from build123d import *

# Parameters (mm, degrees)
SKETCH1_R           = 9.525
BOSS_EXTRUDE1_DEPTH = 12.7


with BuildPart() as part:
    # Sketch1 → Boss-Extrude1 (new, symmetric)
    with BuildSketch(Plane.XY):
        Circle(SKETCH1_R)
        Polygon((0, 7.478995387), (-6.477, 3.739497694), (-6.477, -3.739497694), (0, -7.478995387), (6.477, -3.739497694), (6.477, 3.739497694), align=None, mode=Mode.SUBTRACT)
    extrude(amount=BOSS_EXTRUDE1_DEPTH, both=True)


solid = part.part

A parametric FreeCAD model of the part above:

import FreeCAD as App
import Part
import Sketcher

V = App.Vector
Q = App.Units.Quantity


def add_polygon(sketch, points):
    """Adds a closed chain of lines whose ends are joined by coincident constraints."""
    first, n = sketch.GeometryCount, len(points)
    for a, b in zip(points, points[1:] + points[:1]):
        sketch.addGeometry(Part.LineSegment(App.Vector(*a, 0), App.Vector(*b, 0)), False)
    for i in range(n):
        sketch.addConstraint(Sketcher.Constraint("Coincident", first + i, 2, first + (i + 1) % n, 1))

doc = App.newDocument("Part")
params = doc.addObject("Spreadsheet::Sheet", "Params")
for row, (alias, value) in enumerate([
    ("sketch1_diameter", "0.75 in"),
    ("pad1_length", "1 in"),
], start=1):
    params.set(f"A{row}", alias)
    params.set(f"B{row}", "=" + value)
    params.setAlias(f"B{row}", alias)

body = doc.addObject("PartDesign::Body", "Body")

sketch1 = doc.addObject("Sketcher::SketchObject", "Sketch")
body.addObject(sketch1)
sketch1.AttachmentSupport = (doc.XY_Plane, [""])
sketch1.MapMode = "FlatFace"
sketch1.addGeometry(Part.Circle(V(0, 0, 0), V(0, 0, 1), 10), False)
add_polygon(sketch1, [(-6, 4), (0, 7), (6, 4), (6, -4), (0, -7), (-6, -4)])
sketch1.addConstraint(Sketcher.Constraint("Vertical", 3))
sketch1.addConstraint(Sketcher.Constraint("Vertical", 6))
sketch1.addConstraint(Sketcher.Constraint("Coincident", 0, 3, -1, 1))
sketch1.addConstraint(Sketcher.Constraint("Symmetric", 1, 2, 4, 2, -1, 1))
sketch1.addConstraint(Sketcher.Constraint("Symmetric", 2, 2, 5, 2, -1, 1))
sketch1.addConstraint(Sketcher.Constraint("PointOnObject", 1, 2, -2))
sketch1.addConstraint(Sketcher.Constraint("Parallel", 1, 4))
sketch1.addConstraint(Sketcher.Constraint("Horizontal", 3, 2, 5, 2))
sketch1.addConstraint(Sketcher.Constraint("Diameter", 0, Q("0.75 in")))
sketch1.addConstraint(Sketcher.Constraint("Angle", 1, Q("30 deg")))
sketch1.addConstraint(Sketcher.Constraint("DistanceX", 5, 2, 3, 2, Q("0.51 in")))
sketch1.addConstraint(Sketcher.Constraint("DistanceY", 3, 2, 3, 1, Q("7.478995 mm")))
sketch1.setExpression("Constraints[14]", "Params.sketch1_diameter")
pad1 = doc.addObject("PartDesign::Pad", "Pad")
body.addObject(pad1)
pad1.Profile = sketch1
pad1.setExpression("Length", "Params.pad1_length")
pad1.Midplane = True

doc.recompute()
